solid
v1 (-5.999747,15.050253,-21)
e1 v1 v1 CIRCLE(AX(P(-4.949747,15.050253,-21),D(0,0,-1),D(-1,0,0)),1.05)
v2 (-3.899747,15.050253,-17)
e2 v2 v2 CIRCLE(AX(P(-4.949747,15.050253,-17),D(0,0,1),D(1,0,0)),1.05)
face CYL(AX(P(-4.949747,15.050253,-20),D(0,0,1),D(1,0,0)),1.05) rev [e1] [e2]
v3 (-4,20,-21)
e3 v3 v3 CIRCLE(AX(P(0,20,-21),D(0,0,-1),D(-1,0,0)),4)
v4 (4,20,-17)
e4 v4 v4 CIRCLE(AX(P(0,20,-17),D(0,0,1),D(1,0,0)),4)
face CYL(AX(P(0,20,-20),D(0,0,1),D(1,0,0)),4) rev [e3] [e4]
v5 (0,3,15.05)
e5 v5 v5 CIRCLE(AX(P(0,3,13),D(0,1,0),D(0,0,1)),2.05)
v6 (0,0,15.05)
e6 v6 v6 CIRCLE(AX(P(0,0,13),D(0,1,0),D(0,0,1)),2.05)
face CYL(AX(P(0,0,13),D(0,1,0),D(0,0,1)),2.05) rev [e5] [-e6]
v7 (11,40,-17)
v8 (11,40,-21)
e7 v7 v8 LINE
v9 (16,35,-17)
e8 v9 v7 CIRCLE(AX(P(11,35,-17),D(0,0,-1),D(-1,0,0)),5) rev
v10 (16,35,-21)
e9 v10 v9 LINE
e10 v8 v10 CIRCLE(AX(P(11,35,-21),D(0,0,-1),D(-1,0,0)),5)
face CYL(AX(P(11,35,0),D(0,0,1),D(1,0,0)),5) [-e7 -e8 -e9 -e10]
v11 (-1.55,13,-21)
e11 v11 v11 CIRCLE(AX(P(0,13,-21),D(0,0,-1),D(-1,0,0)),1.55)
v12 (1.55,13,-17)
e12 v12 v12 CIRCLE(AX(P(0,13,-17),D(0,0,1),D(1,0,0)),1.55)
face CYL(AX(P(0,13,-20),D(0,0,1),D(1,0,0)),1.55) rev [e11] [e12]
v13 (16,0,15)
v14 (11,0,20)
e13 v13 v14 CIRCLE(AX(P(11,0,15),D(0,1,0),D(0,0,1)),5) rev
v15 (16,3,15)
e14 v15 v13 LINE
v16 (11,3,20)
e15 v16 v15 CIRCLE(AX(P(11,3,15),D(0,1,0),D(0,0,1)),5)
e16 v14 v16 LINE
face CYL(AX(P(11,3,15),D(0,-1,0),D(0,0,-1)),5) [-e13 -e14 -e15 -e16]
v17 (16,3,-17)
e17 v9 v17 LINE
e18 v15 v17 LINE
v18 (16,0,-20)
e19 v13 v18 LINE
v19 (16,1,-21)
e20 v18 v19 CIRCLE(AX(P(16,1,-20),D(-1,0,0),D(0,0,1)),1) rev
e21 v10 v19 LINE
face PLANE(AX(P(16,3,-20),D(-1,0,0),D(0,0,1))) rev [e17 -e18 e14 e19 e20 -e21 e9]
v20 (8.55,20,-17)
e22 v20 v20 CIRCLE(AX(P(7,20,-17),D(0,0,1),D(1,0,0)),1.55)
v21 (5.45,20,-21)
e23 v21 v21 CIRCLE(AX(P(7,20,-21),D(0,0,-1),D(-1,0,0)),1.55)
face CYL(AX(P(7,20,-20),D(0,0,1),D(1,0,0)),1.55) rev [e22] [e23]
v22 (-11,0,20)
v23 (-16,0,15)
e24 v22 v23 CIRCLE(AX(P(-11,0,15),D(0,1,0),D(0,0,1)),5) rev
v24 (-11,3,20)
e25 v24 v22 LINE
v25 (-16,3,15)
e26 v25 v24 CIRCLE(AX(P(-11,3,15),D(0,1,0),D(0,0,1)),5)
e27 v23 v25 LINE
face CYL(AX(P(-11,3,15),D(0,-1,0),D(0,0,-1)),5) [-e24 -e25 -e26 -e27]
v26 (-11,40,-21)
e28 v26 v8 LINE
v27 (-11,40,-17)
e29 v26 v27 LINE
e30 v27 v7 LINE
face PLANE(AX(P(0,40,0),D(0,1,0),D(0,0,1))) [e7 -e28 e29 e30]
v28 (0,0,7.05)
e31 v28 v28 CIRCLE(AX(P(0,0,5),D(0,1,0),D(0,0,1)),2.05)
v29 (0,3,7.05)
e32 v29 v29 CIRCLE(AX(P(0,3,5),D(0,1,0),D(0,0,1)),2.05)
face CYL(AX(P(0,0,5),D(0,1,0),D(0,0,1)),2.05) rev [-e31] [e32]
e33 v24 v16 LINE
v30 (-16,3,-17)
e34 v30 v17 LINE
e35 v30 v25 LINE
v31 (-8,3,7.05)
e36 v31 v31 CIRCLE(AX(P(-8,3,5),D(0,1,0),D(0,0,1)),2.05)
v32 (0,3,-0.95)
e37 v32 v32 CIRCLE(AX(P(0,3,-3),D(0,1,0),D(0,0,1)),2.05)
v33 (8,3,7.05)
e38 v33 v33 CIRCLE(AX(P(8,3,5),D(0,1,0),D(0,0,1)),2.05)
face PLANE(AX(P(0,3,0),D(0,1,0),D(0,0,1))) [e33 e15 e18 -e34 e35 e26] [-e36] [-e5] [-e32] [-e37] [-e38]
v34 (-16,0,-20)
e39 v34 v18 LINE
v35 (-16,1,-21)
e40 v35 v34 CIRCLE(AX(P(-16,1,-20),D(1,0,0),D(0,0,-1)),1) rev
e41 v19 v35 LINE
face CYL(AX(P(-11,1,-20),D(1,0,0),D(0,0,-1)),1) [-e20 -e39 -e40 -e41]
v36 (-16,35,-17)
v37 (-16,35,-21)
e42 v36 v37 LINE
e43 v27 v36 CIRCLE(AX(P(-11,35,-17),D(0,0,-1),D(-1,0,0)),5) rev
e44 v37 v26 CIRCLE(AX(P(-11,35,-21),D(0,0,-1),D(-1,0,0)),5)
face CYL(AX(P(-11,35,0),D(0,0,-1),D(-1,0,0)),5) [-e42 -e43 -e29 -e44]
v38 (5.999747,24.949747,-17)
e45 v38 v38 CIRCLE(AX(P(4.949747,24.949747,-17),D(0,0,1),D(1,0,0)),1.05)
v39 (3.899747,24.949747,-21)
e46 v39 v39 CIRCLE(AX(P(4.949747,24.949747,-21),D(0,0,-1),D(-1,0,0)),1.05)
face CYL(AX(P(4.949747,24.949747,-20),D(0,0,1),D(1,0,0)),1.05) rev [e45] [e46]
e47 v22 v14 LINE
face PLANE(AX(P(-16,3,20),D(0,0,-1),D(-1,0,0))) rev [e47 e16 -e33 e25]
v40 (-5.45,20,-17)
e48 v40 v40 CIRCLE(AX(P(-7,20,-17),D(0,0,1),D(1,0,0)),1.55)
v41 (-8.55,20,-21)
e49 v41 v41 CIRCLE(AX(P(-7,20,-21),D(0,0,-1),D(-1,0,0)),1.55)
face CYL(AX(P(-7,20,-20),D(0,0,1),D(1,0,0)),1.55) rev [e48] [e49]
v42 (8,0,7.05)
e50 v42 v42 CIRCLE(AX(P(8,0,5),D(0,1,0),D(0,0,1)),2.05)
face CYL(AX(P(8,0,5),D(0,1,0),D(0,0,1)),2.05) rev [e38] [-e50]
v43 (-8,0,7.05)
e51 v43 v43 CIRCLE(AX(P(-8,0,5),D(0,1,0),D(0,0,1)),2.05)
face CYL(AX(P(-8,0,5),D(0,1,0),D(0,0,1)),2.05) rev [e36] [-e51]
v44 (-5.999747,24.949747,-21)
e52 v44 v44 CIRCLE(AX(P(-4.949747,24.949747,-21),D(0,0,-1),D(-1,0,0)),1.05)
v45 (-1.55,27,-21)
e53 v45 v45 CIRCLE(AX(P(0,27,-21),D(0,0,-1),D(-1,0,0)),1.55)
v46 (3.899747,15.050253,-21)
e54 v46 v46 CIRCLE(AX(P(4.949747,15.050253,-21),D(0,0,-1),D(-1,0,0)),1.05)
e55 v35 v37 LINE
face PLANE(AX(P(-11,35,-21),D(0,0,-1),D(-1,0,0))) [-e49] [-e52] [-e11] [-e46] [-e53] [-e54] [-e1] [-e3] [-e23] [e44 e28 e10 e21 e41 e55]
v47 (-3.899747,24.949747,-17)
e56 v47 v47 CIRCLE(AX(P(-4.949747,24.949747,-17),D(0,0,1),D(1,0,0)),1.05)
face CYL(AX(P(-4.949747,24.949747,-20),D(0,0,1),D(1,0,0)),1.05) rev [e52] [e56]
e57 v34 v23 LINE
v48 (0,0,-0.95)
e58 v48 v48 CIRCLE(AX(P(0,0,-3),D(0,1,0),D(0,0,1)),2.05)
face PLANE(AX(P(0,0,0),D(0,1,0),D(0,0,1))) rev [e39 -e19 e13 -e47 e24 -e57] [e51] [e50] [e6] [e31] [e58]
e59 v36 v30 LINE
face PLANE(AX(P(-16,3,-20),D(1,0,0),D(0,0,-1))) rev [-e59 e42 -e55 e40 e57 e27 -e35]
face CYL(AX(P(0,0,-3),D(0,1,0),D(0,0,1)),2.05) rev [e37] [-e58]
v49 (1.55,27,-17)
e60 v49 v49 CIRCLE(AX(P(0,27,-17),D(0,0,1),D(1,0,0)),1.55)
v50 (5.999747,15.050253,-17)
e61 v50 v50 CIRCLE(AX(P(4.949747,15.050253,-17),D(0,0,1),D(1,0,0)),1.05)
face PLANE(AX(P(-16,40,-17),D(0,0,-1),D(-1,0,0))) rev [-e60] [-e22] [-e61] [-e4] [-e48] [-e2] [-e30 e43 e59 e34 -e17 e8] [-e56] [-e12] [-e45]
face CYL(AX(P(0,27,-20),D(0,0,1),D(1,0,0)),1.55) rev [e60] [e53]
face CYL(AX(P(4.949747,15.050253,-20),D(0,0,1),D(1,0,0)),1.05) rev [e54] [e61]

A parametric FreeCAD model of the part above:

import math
import FreeCAD as App
import Part
import Sketcher
Q = App.Units.Quantity


def edges_at(feature, points):
    """Names of the edges that pass closest to the given points."""
    edges = feature.Shape.Edges
    near = lambda p: min(range(len(edges)), key=lambda i: edges[i].distToShape(Part.Vertex(*p))[0])
    return sorted({f"Edge{near(p) + 1}" for p in points})

doc = App.newDocument("Part")
params = doc.addObject("Spreadsheet::Sheet", "Params")
for row, (alias, value) in enumerate([
    ("sketch1_width", "32 mm"),
    ("sketch1_height", "40 mm"),
    ("pad1_length", "3 mm"),
    ("sketch2_width", "32 mm"),
    ("sketch2_height", "3 mm"),
    ("pad2_length", "37 mm"),
    ("sketch3_diameter", "8 mm"),
    ("sketch3_diameter2", "3.1 mm"),
    ("sketch3_diameter3", "2.1 mm"),
    ("sketch4_diameter", "4.1 mm"),
    ("fillet_radius", "5 mm"),
    ("sketch5_diameter", "8 mm"),
    ("sketch5_radius", "5 mm"),
    ("sketch5_diameter2", "2.1 mm"),
    ("sketch5_diameter3", "3.1 mm"),
    ("sketch5_width", "22 mm"),
    ("pad3_length", "1 mm"),
    ("fillet2_radius", "1 mm"),
], start=1):
    params.set(f"A{row}", alias)
    params.set(f"B{row}", "=" + value)
    params.setAlias(f"B{row}", alias)

body = doc.addObject("PartDesign::Body", "Body")

# Sketch on XZ plane
sketch1 = body.newObject("Sketcher::SketchObject", "Sketch")
sketch1.AttachmentSupport = (doc.getObject("XZ_Plane"), [""])
sketch1.MapMode = "FlatFace"
sketch1.addGeometry(Part.LineSegment(App.Vector(-16, -20, 0), App.Vector(-16, 20, 0)), False)
sketch1.addGeometry(Part.LineSegment(App.Vector(-16, 20, 0), App.Vector(16, 20, 0)), False)
sketch1.addGeometry(Part.LineSegment(App.Vector(16, 20, 0), App.Vector(16, -20, 0)), False)
sketch1.addGeometry(Part.LineSegment(App.Vector(16, -20, 0), App.Vector(-16, -20, 0)), False)
sketch1.addConstraint(Sketcher.Constraint("Coincident", 0, 2, 1, 1))
sketch1.addConstraint(Sketcher.Constraint("Coincident", 1, 2, 2, 1))
sketch1.addConstraint(Sketcher.Constraint("Coincident", 2, 2, 3, 1))
sketch1.addConstraint(Sketcher.Constraint("Coincident", 3, 2, 0, 1))
sketch1.addConstraint(Sketcher.Constraint("Vertical", 0))
sketch1.addConstraint(Sketcher.Constraint("Horizontal", 1))
sketch1.addConstraint(Sketcher.Constraint("Vertical", 2))
sketch1.addConstraint(Sketcher.Constraint("Horizontal", 3))
sketch1.addConstraint(Sketcher.Constraint("Symmetric", 0, 2, 2, 2, -1, 1))
sketch1.addConstraint(Sketcher.Constraint("DistanceX", 1, 1, 1, 2, Q("32 mm")))
sketch1.addConstraint(Sketcher.Constraint("DistanceY", 0, 1, 0, 2, Q("40 mm")))
sketch1.setExpression("Constraints[9]", "Params.sketch1_width")
sketch1.setExpression("Constraints[10]", "Params.sketch1_height")
pad1 = body.newObject("PartDesign::Pad", "Pad")
pad1.Profile = sketch1
pad1.setExpression("Length", "Params.pad1_length")
pad1.Reversed = True

# Sketch on XZ plane
sketch2 = body.newObject("Sketcher::SketchObject", "Sketch001")
sketch2.AttachmentSupport = (doc.getObject("XZ_Plane"), [""])
sketch2.MapMode = "FlatFace"
sketch2.AttachmentOffset = App.Placement(App.Vector(0, 0, -3), App.Rotation())
sketch2.addGeometry(Part.LineSegment(App.Vector(-16, -20, 0), App.Vector(-16, -17, 0)), False)
sketch2.addGeometry(Part.LineSegment(App.Vector(-16, -17, 0), App.Vector(16, -17, 0)), False)
sketch2.addGeometry(Part.LineSegment(App.Vector(16, -17, 0), App.Vector(16, -20, 0)), False)
sketch2.addGeometry(Part.LineSegment(App.Vector(16, -20, 0), App.Vector(-16, -20, 0)), False)
sketch2.addConstraint(Sketcher.Constraint("Coincident", 0, 2, 1, 1))
sketch2.addConstraint(Sketcher.Constraint("Coincident", 1, 2, 2, 1))
sketch2.addConstraint(Sketcher.Constraint("Coincident", 2, 2, 3, 1))
sketch2.addConstraint(Sketcher.Constraint("Coincident", 3, 2, 0, 1))
sketch2.addConstraint(Sketcher.Constraint("Vertical", 0))
sketch2.addConstraint(Sketcher.Constraint("Horizontal", 1))
sketch2.addConstraint(Sketcher.Constraint("Vertical", 2))
sketch2.addConstraint(Sketcher.Constraint("Horizontal", 3))
sketch2.addConstraint(Sketcher.Constraint("DistanceX", 1, 1, 1, 2, Q("32 mm")))
sketch2.addConstraint(Sketcher.Constraint("DistanceY", 0, 1, 0, 2, Q("3 mm")))
sketch2.addConstraint(Sketcher.Constraint("DistanceX", 0, 2, -1, 1, Q("16 mm")))
sketch2.addConstraint(Sketcher.Constraint("DistanceY", 0, 2, -1, 1, Q("17 mm")))
sketch2.setExpression("Constraints[8]", "Params.sketch2_width")
sketch2.setExpression("Constraints[9]", "Params.sketch2_height")
pad2 = body.newObject("PartDesign::Pad", "Pad001")
pad2.Profile = sketch2
pad2.setExpression("Length", "Params.pad2_length")
pad2.Reversed = True

# Sketch on XY plane
sketch3 = body.newObject("Sketcher::SketchObject", "Sketch002")
sketch3.AttachmentSupport = (doc.getObject("XY_Plane"), [""])
sketch3.MapMode = "FlatFace"
sketch3.AttachmentOffset = App.Placement(App.Vector(0, 0, -17), App.Rotation())
sketch3.addGeometry(Part.Circle(App.Vector(0, 20, 0), App.Vector(0, 0, 1), 4), False)
sketch3.addGeometry(Part.Circle(App.Vector(7, 20, 0), App.Vector(0, 0, 1), 1.6), False)
sketch3.addGeometry(Part.Circle(App.Vector(0, 13, 0), App.Vector(0, 0, 1), 1.6), False)
sketch3.addGeometry(Part.Circle(App.Vector(-7, 20, 0), App.Vector(0, 0, 1), 1.6), False)
sketch3.addGeometry(Part.Circle(App.Vector(0, 27, 0), App.Vector(0, 0, 1), 1.6), False)
sketch3.addGeometry(Part.Circle(App.Vector(4.9, 24.9, 0), App.Vector(0, 0, 1), 1.1), False)
sketch3.addGeometry(Part.Circle(App.Vector(4.9, 15.1, 0), App.Vector(0, 0, 1), 1.1), False)
sketch3.addGeometry(Part.Circle(App.Vector(-4.9, 15.1, 0), App.Vector(0, 0, 1), 1.1), False)
sketch3.addGeometry(Part.Circle(App.Vector(-4.9, 24.9, 0), App.Vector(0, 0, 1), 1.1), False)
sketch3.addConstraint(Sketcher.Constraint("Equal", 1, 2))
sketch3.addConstraint(Sketcher.Constraint("Equal", 2, 3))
sketch3.addConstraint(Sketcher.Constraint("Equal", 3, 4))
sketch3.addConstraint(Sketcher.Constraint("Equal", 5, 6))
sketch3.addConstraint(Sketcher.Constraint("Equal", 6, 7))
sketch3.addConstraint(Sketcher.Constraint("Equal", 7, 8))
sketch3.addConstraint(Sketcher.Constraint("Symmetric", 1, 3, 3, 3, -2))
sketch3.addConstraint(Sketcher.Constraint("Symmetric", 6, 3, 7, 3, -2))
sketch3.addConstraint(Sketcher.Constraint("Symmetric", 5, 3, 8, 3, -2))
sketch3.addConstraint(Sketcher.Constraint("PointOnObject", 0, 3, -2))
sketch3.addConstraint(Sketcher.Constraint("PointOnObject", 2, 3, -2))
sketch3.addConstraint(Sketcher.Constraint("PointOnObject", 4, 3, -2))
sketch3.addConstraint(Sketcher.Constraint("Horizontal", 0, 3, 1, 3))
sketch3.addConstraint(Sketcher.Constraint("Vertical", 5, 3, 6, 3))
sketch3.addConstraint(Sketcher.Constraint("Diameter", 0, Q("8 mm")))
sketch3.addConstraint(Sketcher.Constraint("Diameter", 1, Q("3.1 mm")))
sketch3.addConstraint(Sketcher.Constraint("Diameter", 5, Q("2.1 mm")))
sketch3.addConstraint(Sketcher.Constraint("DistanceY", -1, 1, 0, 3, Q("20 mm")))
sketch3.addConstraint(Sketcher.Constraint("DistanceX", -1, 1, 1, 3, Q("7 mm")))
sketch3.addConstraint(Sketcher.Constraint("DistanceY", -1, 1, 2, 3, Q("13 mm")))
sketch3.addConstraint(Sketcher.Constraint("DistanceY", -1, 1, 4, 3, Q("27 mm")))
sketch3.addConstraint(Sketcher.Constraint("DistanceX", -1, 1, 5, 3, Q("4.949747 mm")))
sketch3.addConstraint(Sketcher.Constraint("DistanceY", -1, 1, 5, 3, Q("24.949747 mm")))
sketch3.addConstraint(Sketcher.Constraint("DistanceY", -1, 1, 6, 3, Q("15.050253 mm")))
sketch3.setExpression("Constraints[14]", "Params.sketch3_diameter")
sketch3.setExpression("Constraints[15]", "Params.sketch3_diameter2")
sketch3.setExpression("Constraints[16]", "Params.sketch3_diameter3")
pocket1 = body.newObject("PartDesign::Pocket", "Pocket")
pocket1.Profile = sketch3
pocket1.Type = "ThroughAll"

# Sketch on XZ plane
sketch4 = body.newObject("Sketcher::SketchObject", "Sketch003")
sketch4.AttachmentSupport = (doc.getObject("XZ_Plane"), [""])
sketch4.MapMode = "FlatFace"
sketch4.AttachmentOffset = App.Placement(App.Vector(0, 0, -3), App.Rotation())
sketch4.addGeometry(Part.Circle(App.Vector(0, 5, 0), App.Vector(0, 0, 1), 2), False)
sketch4.addGeometry(Part.Circle(App.Vector(-8, 5, 0), App.Vector(0, 0, 1), 2), False)
sketch4.addGeometry(Part.Circle(App.Vector(8, 5, 0), App.Vector(0, 0, 1), 2), False)
sketch4.addGeometry(Part.Circle(App.Vector(0, -3, 0), App.Vector(0, 0, 1), 2), False)
sketch4.addGeometry(Part.Circle(App.Vector(0, 13, 0), App.Vector(0, 0, 1), 2), False)
sketch4.addConstraint(Sketcher.Constraint("Equal", 0, 1))
sketch4.addConstraint(Sketcher.Constraint("Equal", 1, 2))
sketch4.addConstraint(Sketcher.Constraint("Equal", 2, 3))
sketch4.addConstraint(Sketcher.Constraint("Equal", 3, 4))
sketch4.addConstraint(Sketcher.Constraint("Symmetric", 1, 3, 2, 3, -2))
sketch4.addConstraint(Sketcher.Constraint("PointOnObject", 0, 3, -2))
sketch4.addConstraint(Sketcher.Constraint("PointOnObject", 3, 3, -2))
sketch4.addConstraint(Sketcher.Constraint("PointOnObject", 4, 3, -2))
sketch4.addConstraint(Sketcher.Constraint("Horizontal", 0, 3, 1, 3))
sketch4.addConstraint(Sketcher.Constraint("Diameter", 0, Q("4.1 mm")))
sketch4.addConstraint(Sketcher.Constraint("DistanceY", -1, 1, 0, 3, Q("5 mm")))
sketch4.addConstraint(Sketcher.Constraint("DistanceX", 1, 3, -1, 1, Q("8 mm")))
sketch4.addConstraint(Sketcher.Constraint("DistanceY", 3, 3, -1, 1, Q("3 mm")))
sketch4.addConstraint(Sketcher.Constraint("DistanceY", -1, 1, 4, 3, Q("13 mm")))
sketch4.setExpression("Constraints[9]", "Params.sketch4_diameter")
pocket2 = body.newObject("PartDesign::Pocket", "Pocket001")
pocket2.Profile = sketch4
pocket2.Type = "ThroughAll"
pocket2.Reversed = True
doc.recompute()

fillet = body.newObject("PartDesign::Fillet", "Fillet")
fillet.Base = (pocket2, edges_at(pocket2, [
    (-16, 40, -18.5),
    (16, 40, -18.5),
    (16, 1.5, 20),
    (-16, 1.5, 20),
]))
fillet.setExpression("Radius", "Params.fillet_radius")

# Sketch on XY plane
sketch5 = body.newObject("Sketcher::SketchObject", "Sketch004")
sketch5.AttachmentSupport = (doc.getObject("XY_Plane"), [""])
sketch5.MapMode = "FlatFace"
sketch5.AttachmentOffset = App.Placement(App.Vector(0, 0, -20), App.Rotation())
sketch5.addGeometry(Part.LineSegment(App.Vector(-11, 40, 0), App.Vector(11, 40, 0)), False)
sketch5.addGeometry(Part.ArcOfCircle(Part.Circle(App.Vector(11, 35, 0), App.Vector(0, 0, 1), 5), math.radians(0), math.radians(90)), False)
sketch5.addGeometry(Part.LineSegment(App.Vector(16, 35, 0), App.Vector(16, 0, 0)), False)
sketch5.addGeometry(Part.LineSegment(App.Vector(16, 0, 0), App.Vector(-16, 0, 0)), False)
sketch5.addGeometry(Part.LineSegment(App.Vector(-16, 0, 0), App.Vector(-16, 35, 0)), False)
sketch5.addGeometry(Part.ArcOfCircle(Part.Circle(App.Vector(-11, 35, 0), App.Vector(0, 0, 1), 5), math.radians(90), math.radians(180)), False)
sketch5.addGeometry(Part.Circle(App.Vector(4.9, 15.1, 0), App.Vector(0, 0, 1), 1.1), False)
sketch5.addGeometry(Part.Circle(App.Vector(0, 13, 0), App.Vector(0, 0, 1), 1.6), False)
sketch5.addGeometry(Part.Circle(App.Vector(-4.9, 15.1, 0), App.Vector(0, 0, 1), 1.1), False)
sketch5.addGeometry(Part.Circle(App.Vector(7, 20, 0), App.Vector(0, 0, 1), 1.6), False)
sketch5.addGeometry(Part.Circle(App.Vector(4.9, 24.9, 0), App.Vector(0, 0, 1), 1.1), False)
sketch5.addGeometry(Part.Circle(App.Vector(0, 20, 0), App.Vector(0, 0, 1), 4), False)
sketch5.addGeometry(Part.Circle(App.Vector(-7, 20, 0), App.Vector(0, 0, 1), 1.6), False)
sketch5.addGeometry(Part.Circle(App.Vector(0, 27, 0), App.Vector(0, 0, 1), 1.6), False)
sketch5.addGeometry(Part.Circle(App.Vector(-4.9, 24.9, 0), App.Vector(0, 0, 1), 1.1), False)
sketch5.addConstraint(Sketcher.Constraint("Tangent", 0, 2, 1, 2))
sketch5.addConstraint(Sketcher.Constraint("Tangent", 1, 1, 2, 1))
sketch5.addConstraint(Sketcher.Constraint("Coincident", 2, 2, 3, 1))
sketch5.addConstraint(Sketcher.Constraint("Coincident", 3, 2, 4, 1))
sketch5.addConstraint(Sketcher.Constraint("Tangent", 4, 2, 5, 2))
sketch5.addConstraint(Sketcher.Constraint("Tangent", 5, 1, 0, 1))
sketch5.addConstraint(Sketcher.Constraint("Horizontal", 0))
sketch5.addConstraint(Sketcher.Constraint("Vertical", 2))
sketch5.addConstraint(Sketcher.Constraint("Horizontal", 3))
sketch5.addConstraint(Sketcher.Constraint("Vertical", 4))
sketch5.addConstraint(Sketcher.Constraint("Equal", 1, 5))
sketch5.addConstraint(Sketcher.Constraint("Equal", 6, 8))
sketch5.addConstraint(Sketcher.Constraint("Equal", 7, 9))
sketch5.addConstraint(Sketcher.Constraint("Equal", 8, 10))
sketch5.addConstraint(Sketcher.Constraint("Equal", 9, 12))
sketch5.addConstraint(Sketcher.Constraint("Equal", 12, 13))
sketch5.addConstraint(Sketcher.Constraint("Equal", 10, 14))
sketch5.addConstraint(Sketcher.Constraint("Symmetric", 2, 2, 3, 2, -1, 1))
sketch5.addConstraint(Sketcher.Constraint("Symmetric", 6, 3, 8, 3, -2))
sketch5.addConstraint(Sketcher.Constraint("Symmetric", 9, 3, 12, 3, -2))
sketch5.addConstraint(Sketcher.Constraint("Symmetric", 10, 3, 14, 3, -2))
sketch5.addConstraint(Sketcher.Constraint("PointOnObject", 7, 3, -2))
sketch5.addConstraint(Sketcher.Constraint("PointOnObject", 11, 3, -2))
sketch5.addConstraint(Sketcher.Constraint("PointOnObject", 13, 3, -2))
sketch5.addConstraint(Sketcher.Constraint("Horizontal", 9, 3, 11, 3))
sketch5.addConstraint(Sketcher.Constraint("Vertical", 6, 3, 10, 3))
sketch5.addConstraint(Sketcher.Constraint("Diameter", 11, Q("8 mm")))
sketch5.addConstraint(Sketcher.Constraint("Radius", 1, Q("5 mm")))
sketch5.addConstraint(Sketcher.Constraint("Diameter", 6, Q("2.1 mm")))
sketch5.addConstraint(Sketcher.Constraint("Diameter", 7, Q("3.1 mm")))
sketch5.addConstraint(Sketcher.Constraint("DistanceX", 0, 1, 0, 2, Q("22 mm")))
sketch5.addConstraint(Sketcher.Constraint("DistanceY", 2, 2, 2, 1, Q("35 mm")))
sketch5.addConstraint(Sketcher.Constraint("DistanceY", -1, 1, 7, 3, Q("13 mm")))
sketch5.addConstraint(Sketcher.Constraint("DistanceX", -1, 1, 9, 3, Q("7 mm")))
sketch5.addConstraint(Sketcher.Constraint("DistanceY", -1, 1, 9, 3, Q("20 mm")))
sketch5.addConstraint(Sketcher.Constraint("DistanceY", -1, 1, 13, 3, Q("27 mm")))
sketch5.addConstraint(Sketcher.Constraint("DistanceX", -1, 1, 6, 3, Q("4.949747 mm")))
sketch5.addConstraint(Sketcher.Constraint("DistanceY", -1, 1, 6, 3, Q("15.050253 mm")))
sketch5.addConstraint(Sketcher.Constraint("DistanceY", -1, 1, 10, 3, Q("24.949747 mm")))
sketch5.setExpression("Constraints[26]", "Params.sketch5_diameter")
sketch5.setExpression("Constraints[27]", "Params.sketch5_radius")
sketch5.setExpression("Constraints[28]", "Params.sketch5_diameter2")
sketch5.setExpression("Constraints[29]", "Params.sketch5_diameter3")
sketch5.setExpression("Constraints[30]", "Params.sketch5_width")
pad3 = body.newObject("PartDesign::Pad", "Pad002")
pad3.Profile = sketch5
pad3.setExpression("Length", "Params.pad3_length")
pad3.Reversed = True
doc.recompute()

fillet2 = body.newObject("PartDesign::Fillet", "Fillet001")
fillet2.Base = (pad3, edges_at(pad3, [(0, 0, -21)]))
fillet2.setExpression("Radius", "Params.fillet2_radius")

doc.recompute()
